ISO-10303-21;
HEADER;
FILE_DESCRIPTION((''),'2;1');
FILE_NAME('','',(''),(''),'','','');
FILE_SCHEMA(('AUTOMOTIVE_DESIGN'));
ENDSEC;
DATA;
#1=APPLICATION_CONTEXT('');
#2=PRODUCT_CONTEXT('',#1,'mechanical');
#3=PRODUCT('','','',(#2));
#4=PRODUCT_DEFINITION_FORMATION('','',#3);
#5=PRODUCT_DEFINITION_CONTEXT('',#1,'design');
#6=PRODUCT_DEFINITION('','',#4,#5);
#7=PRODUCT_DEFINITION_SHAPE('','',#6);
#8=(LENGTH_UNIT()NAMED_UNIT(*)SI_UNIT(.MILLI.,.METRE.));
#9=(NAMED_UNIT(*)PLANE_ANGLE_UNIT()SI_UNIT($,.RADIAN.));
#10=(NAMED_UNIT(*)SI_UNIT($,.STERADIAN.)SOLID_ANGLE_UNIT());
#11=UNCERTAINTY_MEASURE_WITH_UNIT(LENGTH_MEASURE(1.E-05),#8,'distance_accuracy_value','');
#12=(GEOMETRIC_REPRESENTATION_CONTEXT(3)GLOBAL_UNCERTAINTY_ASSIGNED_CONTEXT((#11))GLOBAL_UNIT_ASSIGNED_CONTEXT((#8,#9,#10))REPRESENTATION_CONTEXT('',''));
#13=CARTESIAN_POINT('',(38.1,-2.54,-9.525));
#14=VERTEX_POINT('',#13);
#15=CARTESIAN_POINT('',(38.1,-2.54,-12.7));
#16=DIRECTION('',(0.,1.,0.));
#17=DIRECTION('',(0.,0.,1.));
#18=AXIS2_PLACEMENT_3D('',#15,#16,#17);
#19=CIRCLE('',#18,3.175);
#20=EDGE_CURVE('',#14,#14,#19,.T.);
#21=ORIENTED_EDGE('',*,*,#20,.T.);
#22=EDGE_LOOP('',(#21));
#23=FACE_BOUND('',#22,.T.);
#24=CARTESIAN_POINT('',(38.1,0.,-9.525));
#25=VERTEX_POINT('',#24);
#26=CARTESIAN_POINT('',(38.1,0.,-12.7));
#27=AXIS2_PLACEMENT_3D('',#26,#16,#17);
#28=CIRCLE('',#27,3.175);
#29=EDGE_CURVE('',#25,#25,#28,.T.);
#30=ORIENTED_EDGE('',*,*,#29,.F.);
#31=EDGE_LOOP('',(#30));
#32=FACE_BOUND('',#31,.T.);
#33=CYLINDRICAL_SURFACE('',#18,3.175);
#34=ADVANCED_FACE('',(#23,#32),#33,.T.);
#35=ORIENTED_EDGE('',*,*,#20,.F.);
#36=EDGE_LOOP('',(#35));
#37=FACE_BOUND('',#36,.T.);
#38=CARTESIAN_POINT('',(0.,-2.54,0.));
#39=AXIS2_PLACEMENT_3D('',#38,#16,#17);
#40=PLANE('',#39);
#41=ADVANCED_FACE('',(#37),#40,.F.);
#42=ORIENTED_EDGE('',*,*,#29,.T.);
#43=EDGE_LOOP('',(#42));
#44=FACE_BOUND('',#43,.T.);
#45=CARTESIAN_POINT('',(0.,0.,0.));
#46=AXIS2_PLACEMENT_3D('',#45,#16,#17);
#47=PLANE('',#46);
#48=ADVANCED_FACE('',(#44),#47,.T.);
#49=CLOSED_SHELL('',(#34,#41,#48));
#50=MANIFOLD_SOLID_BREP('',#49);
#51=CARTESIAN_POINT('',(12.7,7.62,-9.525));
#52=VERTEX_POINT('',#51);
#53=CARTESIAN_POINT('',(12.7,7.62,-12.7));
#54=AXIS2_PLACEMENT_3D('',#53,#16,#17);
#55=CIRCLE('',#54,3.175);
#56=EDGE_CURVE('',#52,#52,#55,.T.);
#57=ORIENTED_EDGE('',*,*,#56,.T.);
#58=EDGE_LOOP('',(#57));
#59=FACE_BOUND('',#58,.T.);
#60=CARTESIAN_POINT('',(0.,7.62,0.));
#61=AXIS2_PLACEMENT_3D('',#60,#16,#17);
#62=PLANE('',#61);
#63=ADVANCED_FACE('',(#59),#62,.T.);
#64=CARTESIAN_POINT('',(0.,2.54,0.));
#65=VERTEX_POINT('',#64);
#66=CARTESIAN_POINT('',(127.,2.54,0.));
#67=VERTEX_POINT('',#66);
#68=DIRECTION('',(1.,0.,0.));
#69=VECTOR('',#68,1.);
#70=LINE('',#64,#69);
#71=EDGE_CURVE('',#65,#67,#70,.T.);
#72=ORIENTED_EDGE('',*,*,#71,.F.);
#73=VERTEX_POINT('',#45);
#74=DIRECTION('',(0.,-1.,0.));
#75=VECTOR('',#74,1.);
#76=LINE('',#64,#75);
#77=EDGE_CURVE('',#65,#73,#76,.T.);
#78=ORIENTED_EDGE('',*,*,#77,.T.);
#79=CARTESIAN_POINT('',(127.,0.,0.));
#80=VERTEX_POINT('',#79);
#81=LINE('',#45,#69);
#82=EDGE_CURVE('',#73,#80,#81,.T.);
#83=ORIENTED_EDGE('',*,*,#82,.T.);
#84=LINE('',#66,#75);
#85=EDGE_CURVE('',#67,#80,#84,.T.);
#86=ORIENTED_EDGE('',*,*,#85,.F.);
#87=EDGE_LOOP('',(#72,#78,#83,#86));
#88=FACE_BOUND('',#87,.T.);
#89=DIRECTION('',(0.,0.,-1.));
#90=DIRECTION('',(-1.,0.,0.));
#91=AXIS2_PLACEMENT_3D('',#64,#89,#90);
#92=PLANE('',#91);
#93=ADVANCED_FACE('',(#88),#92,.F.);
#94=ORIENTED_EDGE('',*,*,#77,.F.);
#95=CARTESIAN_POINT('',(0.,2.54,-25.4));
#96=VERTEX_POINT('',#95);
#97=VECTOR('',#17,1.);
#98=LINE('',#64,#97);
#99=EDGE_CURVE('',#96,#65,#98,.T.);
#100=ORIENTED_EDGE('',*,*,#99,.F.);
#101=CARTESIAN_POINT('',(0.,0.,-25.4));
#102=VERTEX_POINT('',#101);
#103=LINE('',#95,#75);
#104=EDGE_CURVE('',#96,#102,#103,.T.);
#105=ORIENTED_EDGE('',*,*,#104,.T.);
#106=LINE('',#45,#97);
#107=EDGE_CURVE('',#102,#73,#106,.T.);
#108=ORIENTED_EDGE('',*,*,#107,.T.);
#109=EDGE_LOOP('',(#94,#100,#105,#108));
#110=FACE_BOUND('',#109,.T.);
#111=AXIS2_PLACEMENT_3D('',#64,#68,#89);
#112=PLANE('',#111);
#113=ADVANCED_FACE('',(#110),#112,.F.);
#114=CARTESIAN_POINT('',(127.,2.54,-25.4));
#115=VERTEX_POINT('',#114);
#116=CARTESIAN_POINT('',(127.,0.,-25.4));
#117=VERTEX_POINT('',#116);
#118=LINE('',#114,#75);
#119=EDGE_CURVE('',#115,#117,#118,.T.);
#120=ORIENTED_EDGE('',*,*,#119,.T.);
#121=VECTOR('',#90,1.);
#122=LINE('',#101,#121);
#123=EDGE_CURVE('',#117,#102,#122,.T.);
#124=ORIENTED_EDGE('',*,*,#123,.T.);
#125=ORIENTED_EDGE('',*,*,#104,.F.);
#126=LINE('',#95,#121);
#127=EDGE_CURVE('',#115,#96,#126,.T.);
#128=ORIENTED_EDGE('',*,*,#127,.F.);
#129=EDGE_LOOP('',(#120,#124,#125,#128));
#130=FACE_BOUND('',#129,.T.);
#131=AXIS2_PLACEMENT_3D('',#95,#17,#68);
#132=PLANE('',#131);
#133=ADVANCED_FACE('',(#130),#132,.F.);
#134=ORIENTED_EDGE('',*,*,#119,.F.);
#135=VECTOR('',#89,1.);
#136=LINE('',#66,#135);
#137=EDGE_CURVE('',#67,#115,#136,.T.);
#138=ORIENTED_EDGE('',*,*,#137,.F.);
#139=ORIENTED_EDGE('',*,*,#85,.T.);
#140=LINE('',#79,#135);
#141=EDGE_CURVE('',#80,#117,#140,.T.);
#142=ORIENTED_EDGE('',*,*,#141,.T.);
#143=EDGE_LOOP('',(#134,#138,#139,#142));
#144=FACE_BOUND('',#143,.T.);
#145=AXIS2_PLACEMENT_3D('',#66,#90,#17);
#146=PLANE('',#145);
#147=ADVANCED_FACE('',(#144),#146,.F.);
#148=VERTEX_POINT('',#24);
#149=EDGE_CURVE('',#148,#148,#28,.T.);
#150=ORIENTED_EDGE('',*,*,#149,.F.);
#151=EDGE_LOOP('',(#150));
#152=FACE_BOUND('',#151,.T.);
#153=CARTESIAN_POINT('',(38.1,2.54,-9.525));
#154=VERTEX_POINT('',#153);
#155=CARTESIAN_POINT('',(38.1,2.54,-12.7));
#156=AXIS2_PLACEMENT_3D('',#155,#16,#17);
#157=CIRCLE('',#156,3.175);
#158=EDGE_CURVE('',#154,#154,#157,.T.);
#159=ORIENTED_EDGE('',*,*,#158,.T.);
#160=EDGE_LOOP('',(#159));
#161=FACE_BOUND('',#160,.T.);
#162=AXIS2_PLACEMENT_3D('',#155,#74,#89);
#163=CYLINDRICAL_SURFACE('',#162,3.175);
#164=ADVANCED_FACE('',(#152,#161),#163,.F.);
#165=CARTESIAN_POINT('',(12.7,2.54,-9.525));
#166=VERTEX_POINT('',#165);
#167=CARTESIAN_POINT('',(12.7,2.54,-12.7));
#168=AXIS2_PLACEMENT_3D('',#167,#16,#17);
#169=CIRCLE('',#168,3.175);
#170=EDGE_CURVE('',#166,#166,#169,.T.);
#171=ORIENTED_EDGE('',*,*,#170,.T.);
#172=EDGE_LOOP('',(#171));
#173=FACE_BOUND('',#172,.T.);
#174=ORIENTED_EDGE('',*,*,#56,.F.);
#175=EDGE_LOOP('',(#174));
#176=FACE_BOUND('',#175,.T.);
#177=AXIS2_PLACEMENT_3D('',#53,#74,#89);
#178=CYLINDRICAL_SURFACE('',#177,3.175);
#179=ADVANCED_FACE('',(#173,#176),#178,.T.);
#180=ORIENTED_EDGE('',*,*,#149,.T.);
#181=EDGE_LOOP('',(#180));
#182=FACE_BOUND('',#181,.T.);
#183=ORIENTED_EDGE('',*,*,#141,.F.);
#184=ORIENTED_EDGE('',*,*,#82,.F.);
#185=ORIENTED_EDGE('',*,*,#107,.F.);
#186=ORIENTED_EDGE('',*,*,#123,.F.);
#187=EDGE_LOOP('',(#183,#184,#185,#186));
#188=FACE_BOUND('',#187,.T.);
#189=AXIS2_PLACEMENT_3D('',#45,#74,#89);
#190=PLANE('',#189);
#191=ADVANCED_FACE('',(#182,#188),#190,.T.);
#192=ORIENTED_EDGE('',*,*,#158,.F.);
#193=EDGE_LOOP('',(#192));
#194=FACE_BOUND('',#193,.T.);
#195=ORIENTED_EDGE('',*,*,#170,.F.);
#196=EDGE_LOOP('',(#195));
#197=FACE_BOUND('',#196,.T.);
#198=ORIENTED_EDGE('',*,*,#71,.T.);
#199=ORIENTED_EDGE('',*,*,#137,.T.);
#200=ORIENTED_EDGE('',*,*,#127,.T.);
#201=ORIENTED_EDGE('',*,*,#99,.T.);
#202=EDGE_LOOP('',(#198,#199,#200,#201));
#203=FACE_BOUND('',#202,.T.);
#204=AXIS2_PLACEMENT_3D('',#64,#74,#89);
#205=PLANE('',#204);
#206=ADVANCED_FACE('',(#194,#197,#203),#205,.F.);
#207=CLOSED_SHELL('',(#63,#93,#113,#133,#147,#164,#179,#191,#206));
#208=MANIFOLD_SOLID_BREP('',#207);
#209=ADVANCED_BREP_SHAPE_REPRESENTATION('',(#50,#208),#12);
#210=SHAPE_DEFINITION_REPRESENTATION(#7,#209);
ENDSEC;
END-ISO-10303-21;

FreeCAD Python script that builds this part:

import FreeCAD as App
import Part
import Sketcher
Q = App.Units.Quantity

doc = App.newDocument("Part")
params = doc.addObject("Spreadsheet::Sheet", "Params")
for row, (alias, value) in enumerate([
    ("sketch1_diameter", "0.25 in"),
    ("sketch1_width", "5 in"),
    ("sketch1_height", "1 in"),
    ("pad1_length", "0.1 in"),
    ("sketch2_diameter", "0.25 in"),
    ("pad2_length", "0.3 in"),
    ("sketch3_diameter", "0.25 in"),
    ("pad3_length", "0.1 in"),
], start=1):
    params.set(f"A{row}", alias)
    params.set(f"B{row}", "=" + value)
    params.setAlias(f"B{row}", alias)

body = doc.addObject("PartDesign::Body", "Body")

sketch1 = body.newObject("Sketcher::SketchObject", "Sketch")
sketch1.AttachmentSupport = (doc.getObject("XZ_Plane"), [""])
sketch1.MapMode = "FlatFace"
sketch1.addGeometry([
    Part.LineSegment(App.Vector(0, -25.4, 0), App.Vector(0, 0, 0)),
    Part.LineSegment(App.Vector(0, 0, 0), App.Vector(127, 0, 0)),
    Part.LineSegment(App.Vector(127, 0, 0), App.Vector(127, -25.4, 0)),
    Part.LineSegment(App.Vector(127, -25.4, 0), App.Vector(0, -25.4, 0)),
    Part.Circle(App.Vector(12.7, -12.7, 0), App.Vector(0, 0, 1), 3.2),
    Part.Circle(App.Vector(38.1, -12.7, 0), App.Vector(0, 0, 1), 3.2),
], False)
sketch1.addConstraint([
    Sketcher.Constraint("Coincident", 0, 2, 1, 1),
    Sketcher.Constraint("Coincident", 1, 2, 2, 1),
    Sketcher.Constraint("Coincident", 2, 2, 3, 1),
    Sketcher.Constraint("Coincident", 3, 2, 0, 1),
    Sketcher.Constraint("Vertical", 0),
    Sketcher.Constraint("Horizontal", 1),
    Sketcher.Constraint("Vertical", 2),
    Sketcher.Constraint("Horizontal", 3),
    Sketcher.Constraint("Coincident", 0, 2, -1, 1),
    Sketcher.Constraint("Equal", 4, 5),
    Sketcher.Constraint("Horizontal", 4, 3, 5, 3),
    Sketcher.Constraint("Diameter", 4, Q("0.25 in")),
    Sketcher.Constraint("DistanceX", 1, 1, 1, 2, Q("5 in")),
    Sketcher.Constraint("DistanceY", 0, 1, 0, 2, Q("1 in")),
    Sketcher.Constraint("DistanceX", 4, 3, 5, 3, Q("1 in")),
    Sketcher.Constraint("DistanceX", -1, 1, 4, 3, Q("0.5 in")),
    Sketcher.Constraint("DistanceY", 4, 3, -1, 1, Q("0.5 in")),
])
sketch1.setExpression("Constraints[11]", "Params.sketch1_diameter")
sketch1.setExpression("Constraints[12]", "Params.sketch1_width")
sketch1.setExpression("Constraints[13]", "Params.sketch1_height")
pad1 = body.newObject("PartDesign::Pad", "Pad")
pad1.Profile = sketch1
pad1.setExpression("Length", "Params.pad1_length")
pad1.Reversed = True

sketch2 = body.newObject("Sketcher::SketchObject", "Sketch001")
sketch2.AttachmentSupport = (doc.getObject("XZ_Plane"), [""])
sketch2.MapMode = "FlatFace"
sketch2.addGeometry(Part.Circle(App.Vector(12.7, -12.7, 0), App.Vector(0, 0, 1), 3.2), False)
sketch2.addConstraint([
    Sketcher.Constraint("Diameter", 0, Q("0.25 in")),
    Sketcher.Constraint("DistanceX", -1, 1, 0, 3, Q("0.5 in")),
    Sketcher.Constraint("DistanceY", 0, 3, -1, 1, Q("0.5 in")),
])
sketch2.setExpression("Constraints[0]", "Params.sketch2_diameter")
pad2 = body.newObject("PartDesign::Pad", "Pad001")
pad2.Profile = sketch2
pad2.setExpression("Length", "Params.pad2_length")
pad2.Reversed = True
body2 = doc.addObject("PartDesign::Body", "Body001")

sketch3 = body2.newObject("Sketcher::SketchObject", "Sketch002")
sketch3.AttachmentSupport = (doc.getObject("XZ_Plane001"), [""])
sketch3.MapMode = "FlatFace"
sketch3.addGeometry(Part.Circle(App.Vector(38.1, -12.7, 0), App.Vector(0, 0, 1), 3.2), False)
sketch3.addConstraint([
    Sketcher.Constraint("Diameter", 0, Q("0.25 in")),
    Sketcher.Constraint("DistanceX", -1, 1, 0, 3, Q("1.5 in")),
    Sketcher.Constraint("DistanceY", 0, 3, -1, 1, Q("0.5 in")),
])
sketch3.setExpression("Constraints[0]", "Params.sketch3_diameter")
pad3 = body2.newObject("PartDesign::Pad", "Pad002")
pad3.Profile = sketch3
pad3.setExpression("Length", "Params.pad3_length")

doc.recompute()
